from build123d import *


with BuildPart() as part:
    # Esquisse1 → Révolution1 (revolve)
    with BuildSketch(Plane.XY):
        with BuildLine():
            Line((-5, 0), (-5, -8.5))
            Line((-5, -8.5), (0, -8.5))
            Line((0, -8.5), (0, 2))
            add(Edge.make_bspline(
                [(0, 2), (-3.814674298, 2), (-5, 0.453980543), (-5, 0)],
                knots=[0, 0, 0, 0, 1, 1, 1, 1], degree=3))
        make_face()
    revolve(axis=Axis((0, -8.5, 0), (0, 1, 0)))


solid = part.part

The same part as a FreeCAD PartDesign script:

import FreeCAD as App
import Part
import Sketcher
from FreeCAD import Vector
Q = App.Units.Quantity

doc = App.newDocument("Part")
body = doc.addObject("PartDesign::Body", "Body")

sketch1 = body.newObject("Sketcher::SketchObject", "Sketch")
sketch1.AttachmentSupport = (doc.getObject("XY_Plane"), [""])
sketch1.MapMode = "FlatFace"
sketch1.addGeometry([
    Part.LineSegment(Vector(-5, 0, 0), Vector(-5, -8.5, 0)),
    Part.LineSegment(Vector(-5, -8.5, 0), Vector(0, -8.5, 0)),
    Part.LineSegment(Vector(0, -8.5, 0), Vector(0, 2, 0)),
    Part.BSplineCurve([Vector(0, 2, 0), Vector(-3.814674, 2, 0), Vector(-5, 0.453981, 0), Vector(-5, 0, 0)], [4, 4], [0, 1], False, 3, [1, 1, 1, 1], False),
], False)
sketch1.addConstraint([
    Sketcher.Constraint("Block", 3),
    Sketcher.Constraint("Coincident", 0, 2, 1, 1),
    Sketcher.Constraint("Coincident", 1, 2, 2, 1),
    Sketcher.Constraint("Coincident", 2, 2, 3, 1),
    Sketcher.Constraint("Coincident", 3, 2, 0, 1),
    Sketcher.Constraint("Vertical", 0),
    Sketcher.Constraint("Horizontal", 1),
    Sketcher.Constraint("Vertical", 2),
    Sketcher.Constraint("DistanceY", 0, 2, 0, 1, Q("8.5 mm")),
])
revolution = body.newObject("PartDesign::Revolution", "Revolution")
revolution.Profile = sketch1
revolution.ReferenceAxis = (sketch1, ["V_Axis"])
revolution.Angle = 360

doc.recompute()
